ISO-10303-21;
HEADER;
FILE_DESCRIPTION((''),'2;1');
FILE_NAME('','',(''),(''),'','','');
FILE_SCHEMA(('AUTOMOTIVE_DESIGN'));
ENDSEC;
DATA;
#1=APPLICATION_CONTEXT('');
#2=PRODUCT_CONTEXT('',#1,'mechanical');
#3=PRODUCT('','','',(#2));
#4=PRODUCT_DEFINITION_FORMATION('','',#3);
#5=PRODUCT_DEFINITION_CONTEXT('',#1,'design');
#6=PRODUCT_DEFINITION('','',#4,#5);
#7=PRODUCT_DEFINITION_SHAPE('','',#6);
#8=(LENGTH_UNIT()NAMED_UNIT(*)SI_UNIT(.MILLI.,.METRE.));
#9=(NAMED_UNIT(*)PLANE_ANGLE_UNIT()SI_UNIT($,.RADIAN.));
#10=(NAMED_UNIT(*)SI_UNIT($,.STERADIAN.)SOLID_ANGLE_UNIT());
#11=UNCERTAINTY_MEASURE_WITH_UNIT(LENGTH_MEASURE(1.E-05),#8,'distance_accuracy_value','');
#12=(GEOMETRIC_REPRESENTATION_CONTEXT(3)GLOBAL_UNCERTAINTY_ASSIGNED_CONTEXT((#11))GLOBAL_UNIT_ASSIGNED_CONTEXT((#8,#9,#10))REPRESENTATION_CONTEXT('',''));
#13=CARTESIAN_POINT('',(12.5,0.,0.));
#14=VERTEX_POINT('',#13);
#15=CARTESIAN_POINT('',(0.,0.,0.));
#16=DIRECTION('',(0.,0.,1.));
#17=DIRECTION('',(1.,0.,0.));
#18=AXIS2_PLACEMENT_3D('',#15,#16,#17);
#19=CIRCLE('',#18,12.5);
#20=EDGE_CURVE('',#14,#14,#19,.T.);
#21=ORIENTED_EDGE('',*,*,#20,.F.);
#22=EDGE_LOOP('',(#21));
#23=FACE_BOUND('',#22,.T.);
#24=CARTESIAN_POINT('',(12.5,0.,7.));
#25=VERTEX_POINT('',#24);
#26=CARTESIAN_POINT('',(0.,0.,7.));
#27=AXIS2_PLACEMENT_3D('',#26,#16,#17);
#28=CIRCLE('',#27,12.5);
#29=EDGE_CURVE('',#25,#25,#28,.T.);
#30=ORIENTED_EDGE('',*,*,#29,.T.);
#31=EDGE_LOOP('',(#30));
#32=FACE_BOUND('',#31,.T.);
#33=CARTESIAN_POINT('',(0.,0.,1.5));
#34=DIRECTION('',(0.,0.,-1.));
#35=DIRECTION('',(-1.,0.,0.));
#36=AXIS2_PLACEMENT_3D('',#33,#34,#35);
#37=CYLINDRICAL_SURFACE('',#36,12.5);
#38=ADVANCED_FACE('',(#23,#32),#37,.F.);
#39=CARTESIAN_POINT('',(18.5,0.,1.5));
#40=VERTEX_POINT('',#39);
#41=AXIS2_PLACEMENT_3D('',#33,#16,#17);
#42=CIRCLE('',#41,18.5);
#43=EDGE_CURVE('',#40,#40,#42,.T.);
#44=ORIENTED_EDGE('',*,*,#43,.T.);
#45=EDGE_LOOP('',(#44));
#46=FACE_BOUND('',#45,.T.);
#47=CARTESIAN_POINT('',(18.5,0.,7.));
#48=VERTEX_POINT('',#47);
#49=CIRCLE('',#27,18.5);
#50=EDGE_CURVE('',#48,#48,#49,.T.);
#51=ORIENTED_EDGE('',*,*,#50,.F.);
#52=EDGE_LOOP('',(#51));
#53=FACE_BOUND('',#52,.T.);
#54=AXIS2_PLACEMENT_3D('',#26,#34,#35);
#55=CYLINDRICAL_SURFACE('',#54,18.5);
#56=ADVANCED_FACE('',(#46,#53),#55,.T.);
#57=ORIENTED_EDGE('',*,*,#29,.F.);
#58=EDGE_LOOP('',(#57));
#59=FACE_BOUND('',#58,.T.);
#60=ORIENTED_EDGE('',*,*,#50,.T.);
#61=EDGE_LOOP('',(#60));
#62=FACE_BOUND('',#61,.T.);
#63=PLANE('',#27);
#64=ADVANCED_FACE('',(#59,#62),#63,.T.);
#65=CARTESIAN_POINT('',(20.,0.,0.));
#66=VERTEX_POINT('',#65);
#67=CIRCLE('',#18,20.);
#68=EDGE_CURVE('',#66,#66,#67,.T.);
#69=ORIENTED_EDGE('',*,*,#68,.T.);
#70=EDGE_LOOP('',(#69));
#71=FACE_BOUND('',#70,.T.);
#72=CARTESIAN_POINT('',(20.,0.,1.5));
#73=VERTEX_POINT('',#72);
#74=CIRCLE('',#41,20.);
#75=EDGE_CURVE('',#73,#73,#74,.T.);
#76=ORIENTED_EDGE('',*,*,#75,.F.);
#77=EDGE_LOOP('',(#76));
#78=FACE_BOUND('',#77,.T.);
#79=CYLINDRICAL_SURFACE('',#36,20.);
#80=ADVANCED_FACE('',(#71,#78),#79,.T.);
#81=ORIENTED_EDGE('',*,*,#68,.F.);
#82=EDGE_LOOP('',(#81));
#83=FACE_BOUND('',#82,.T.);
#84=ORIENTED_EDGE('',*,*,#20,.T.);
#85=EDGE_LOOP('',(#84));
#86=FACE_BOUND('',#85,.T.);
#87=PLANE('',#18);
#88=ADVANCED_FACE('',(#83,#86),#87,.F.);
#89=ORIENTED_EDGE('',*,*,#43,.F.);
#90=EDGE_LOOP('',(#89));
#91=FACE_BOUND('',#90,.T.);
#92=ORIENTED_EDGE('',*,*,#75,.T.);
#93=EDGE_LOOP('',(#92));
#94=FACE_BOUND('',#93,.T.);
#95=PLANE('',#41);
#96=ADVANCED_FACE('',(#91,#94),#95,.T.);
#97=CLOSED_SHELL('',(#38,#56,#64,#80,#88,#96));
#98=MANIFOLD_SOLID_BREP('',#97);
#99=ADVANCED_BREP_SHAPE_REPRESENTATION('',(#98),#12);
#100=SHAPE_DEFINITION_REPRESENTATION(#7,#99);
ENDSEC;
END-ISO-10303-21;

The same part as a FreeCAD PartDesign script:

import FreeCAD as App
import Part
import Sketcher

V = App.Vector

doc = App.newDocument("Part")
body = doc.addObject("PartDesign::Body", "Body")

# Sketch on XY plane
sketch1 = body.newObject("Sketcher::SketchObject", "Sketch")
sketch1.AttachmentSupport = (doc.getObject("XY_Plane"), [""])
sketch1.MapMode = "FlatFace"
sketch1.addGeometry([
    Part.Circle(V(0, 0, 0), V(0, 0, 1), 20),
    Part.Circle(V(0, 0, 0), V(0, 0, 1), 12),
], False)
sketch1.addConstraint([
    Sketcher.Constraint("Coincident", 0, 3, -1, 1),
    Sketcher.Constraint("Coincident", 1, 3, -1, 1),
    Sketcher.Constraint("Diameter", 0, 40.0),
    Sketcher.Constraint("Diameter", 1, 25.0),
])
pad1 = body.newObject("PartDesign::Pad", "Pad")
pad1.Profile = sketch1
pad1.Length = 1.5

# Sketch on XY plane
sketch2 = body.newObject("Sketcher::SketchObject", "Sketch001")
sketch2.AttachmentSupport = (doc.getObject("XY_Plane"), [""])
sketch2.MapMode = "FlatFace"
sketch2.AttachmentOffset = App.Placement(V(0, 0, 1.5), App.Rotation())
sketch2.addGeometry([
    Part.Circle(V(0, 0, 0), V(0, 0, 1), 18),
    Part.Circle(V(0, 0, 0), V(0, 0, 1), 12),
], False)
sketch2.addConstraint([
    Sketcher.Constraint("Coincident", 0, 3, -1, 1),
    Sketcher.Constraint("Coincident", 1, 3, -1, 1),
    Sketcher.Constraint("Diameter", 0, 37.0),
    Sketcher.Constraint("Diameter", 1, 25.0),
])
pad2 = body.newObject("PartDesign::Pad", "Pad001")
pad2.Profile = sketch2
pad2.Length = 5.5

doc.recompute()
